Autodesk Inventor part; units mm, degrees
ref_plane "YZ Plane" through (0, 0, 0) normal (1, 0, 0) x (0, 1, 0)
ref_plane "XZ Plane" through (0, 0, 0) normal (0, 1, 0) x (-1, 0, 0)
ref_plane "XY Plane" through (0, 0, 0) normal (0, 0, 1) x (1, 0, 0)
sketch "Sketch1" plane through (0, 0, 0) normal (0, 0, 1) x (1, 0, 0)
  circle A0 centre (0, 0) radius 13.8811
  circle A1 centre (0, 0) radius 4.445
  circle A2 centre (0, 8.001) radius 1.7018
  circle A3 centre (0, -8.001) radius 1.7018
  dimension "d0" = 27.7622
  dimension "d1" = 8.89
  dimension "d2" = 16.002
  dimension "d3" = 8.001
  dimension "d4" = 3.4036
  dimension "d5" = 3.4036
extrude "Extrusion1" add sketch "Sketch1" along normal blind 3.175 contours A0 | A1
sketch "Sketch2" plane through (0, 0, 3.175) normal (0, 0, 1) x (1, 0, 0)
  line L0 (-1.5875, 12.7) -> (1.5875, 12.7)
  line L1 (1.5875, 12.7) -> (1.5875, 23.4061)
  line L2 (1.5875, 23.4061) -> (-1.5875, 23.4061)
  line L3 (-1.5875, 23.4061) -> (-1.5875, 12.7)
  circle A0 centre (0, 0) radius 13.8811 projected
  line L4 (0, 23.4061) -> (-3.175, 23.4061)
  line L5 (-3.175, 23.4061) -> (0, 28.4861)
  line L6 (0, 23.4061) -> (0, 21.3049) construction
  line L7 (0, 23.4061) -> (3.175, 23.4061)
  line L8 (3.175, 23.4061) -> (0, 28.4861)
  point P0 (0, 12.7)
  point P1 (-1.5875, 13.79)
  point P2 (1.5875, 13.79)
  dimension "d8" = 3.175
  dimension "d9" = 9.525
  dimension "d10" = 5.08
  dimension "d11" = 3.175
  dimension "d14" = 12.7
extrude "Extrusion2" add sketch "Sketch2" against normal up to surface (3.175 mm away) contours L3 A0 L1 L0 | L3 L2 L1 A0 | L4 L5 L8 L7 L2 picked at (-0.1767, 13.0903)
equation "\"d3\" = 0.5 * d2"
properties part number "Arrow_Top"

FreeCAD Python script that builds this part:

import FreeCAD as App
import Part
import Sketcher
Q = App.Units.Quantity


def add_polygon(sketch, points):
    """Adds a closed chain of lines whose ends are joined by coincident constraints."""
    first, n = sketch.GeometryCount, len(points)
    for a, b in zip(points, points[1:] + points[:1]):
        sketch.addGeometry(Part.LineSegment(App.Vector(*a, 0), App.Vector(*b, 0)), False)
    for i in range(n):
        sketch.addConstraint(Sketcher.Constraint("Coincident", first + i, 2, first + (i + 1) % n, 1))

doc = App.newDocument("Part")
params = doc.addObject("Spreadsheet::Sheet", "Params")
for row, (alias, value) in enumerate([
    ("sketch1_diameter", "1.093 in"),
    ("sketch1_diameter2", "0.134 in"),
    ("pad1_length", "0.125 in"),
    ("sketch2_width", "0.125 in"),
    ("pad2_length", "0.125 in"),
], start=1):
    params.set(f"A{row}", alias)
    params.set(f"B{row}", "=" + value)
    params.setAlias(f"B{row}", alias)

body = doc.addObject("PartDesign::Body", "Body")

# Sketch on XY plane
sketch1 = body.newObject("Sketcher::SketchObject", "Sketch")
sketch1.AttachmentSupport = (doc.getObject("XY_Plane"), [""])
sketch1.MapMode = "FlatFace"
sketch1.addGeometry(Part.Circle(App.Vector(0, 0, 0), App.Vector(0, 0, 1), 13.9), False)
sketch1.addGeometry(Part.Circle(App.Vector(0, -8, 0), App.Vector(0, 0, 1), 1.7), False)
sketch1.addGeometry(Part.Circle(App.Vector(0, 8, 0), App.Vector(0, 0, 1), 1.7), False)
sketch1.addConstraint(Sketcher.Constraint("Coincident", 0, 3, -1, 1))
sketch1.addConstraint(Sketcher.Constraint("Equal", 1, 2))
sketch1.addConstraint(Sketcher.Constraint("Symmetric", 1, 3, 2, 3, -1, 1))
sketch1.addConstraint(Sketcher.Constraint("PointOnObject", 1, 3, -2))
sketch1.addConstraint(Sketcher.Constraint("Diameter", 0, Q("1.093 in")))
sketch1.addConstraint(Sketcher.Constraint("Diameter", 1, Q("0.134 in")))
sketch1.addConstraint(Sketcher.Constraint("DistanceY", 1, 3, 2, 3, Q("0.63 in")))
sketch1.setExpression("Constraints[4]", "Params.sketch1_diameter")
sketch1.setExpression("Constraints[5]", "Params.sketch1_diameter2")
pad1 = body.newObject("PartDesign::Pad", "Pad")
pad1.Profile = sketch1
pad1.setExpression("Length", "Params.pad1_length")

# Sketch on XY plane
sketch2 = body.newObject("Sketcher::SketchObject", "Sketch001")
sketch2.AttachmentSupport = (doc.getObject("XY_Plane"), [""])
sketch2.MapMode = "FlatFace"
sketch2.AttachmentOffset = App.Placement(App.Vector(0, 0, 0.125 * 25.4), App.Rotation())
add_polygon(sketch2, [(-1.6, 12.7), (1.6, 12.7), (1.6, 23.4), (3.2, 23.4), (0, 28.5), (-3.2, 23.4), (-1.6, 23.4)])  # lines 0-6
sketch2.addConstraint(Sketcher.Constraint("Horizontal", 0))
sketch2.addConstraint(Sketcher.Constraint("Vertical", 1))
sketch2.addConstraint(Sketcher.Constraint("Horizontal", 2))
sketch2.addConstraint(Sketcher.Constraint("Horizontal", 5))
sketch2.addConstraint(Sketcher.Constraint("Vertical", 6))
sketch2.addConstraint(Sketcher.Constraint("Symmetric", 2, 2, 4, 2, -2))
sketch2.addConstraint(Sketcher.Constraint("PointOnObject", 3, 2, -2))
sketch2.addConstraint(Sketcher.Constraint("Equal", 2, 5))
sketch2.addConstraint(Sketcher.Constraint("DistanceY", -1, 1, 0, 2, Q("0.5 in")))
sketch2.addConstraint(Sketcher.Constraint("DistanceY", 1, 2, 3, 2, Q("0.2 in")))
sketch2.addConstraint(Sketcher.Constraint("DistanceX", 0, 1, 0, 2, Q("0.125 in")))
sketch2.addConstraint(Sketcher.Constraint("DistanceX", -1, 1, 2, 2, Q("0.125 in")))
sketch2.addConstraint(Sketcher.Constraint("DistanceY", 1, 1, 1, 2, Q("0.4215 in")))
sketch2.setExpression("Constraints[17]", "Params.sketch2_width")
pad2 = body.newObject("PartDesign::Pad", "Pad001")
pad2.Profile = sketch2
pad2.setExpression("Length", "Params.pad2_length")
pad2.Reversed = True

doc.recompute()
